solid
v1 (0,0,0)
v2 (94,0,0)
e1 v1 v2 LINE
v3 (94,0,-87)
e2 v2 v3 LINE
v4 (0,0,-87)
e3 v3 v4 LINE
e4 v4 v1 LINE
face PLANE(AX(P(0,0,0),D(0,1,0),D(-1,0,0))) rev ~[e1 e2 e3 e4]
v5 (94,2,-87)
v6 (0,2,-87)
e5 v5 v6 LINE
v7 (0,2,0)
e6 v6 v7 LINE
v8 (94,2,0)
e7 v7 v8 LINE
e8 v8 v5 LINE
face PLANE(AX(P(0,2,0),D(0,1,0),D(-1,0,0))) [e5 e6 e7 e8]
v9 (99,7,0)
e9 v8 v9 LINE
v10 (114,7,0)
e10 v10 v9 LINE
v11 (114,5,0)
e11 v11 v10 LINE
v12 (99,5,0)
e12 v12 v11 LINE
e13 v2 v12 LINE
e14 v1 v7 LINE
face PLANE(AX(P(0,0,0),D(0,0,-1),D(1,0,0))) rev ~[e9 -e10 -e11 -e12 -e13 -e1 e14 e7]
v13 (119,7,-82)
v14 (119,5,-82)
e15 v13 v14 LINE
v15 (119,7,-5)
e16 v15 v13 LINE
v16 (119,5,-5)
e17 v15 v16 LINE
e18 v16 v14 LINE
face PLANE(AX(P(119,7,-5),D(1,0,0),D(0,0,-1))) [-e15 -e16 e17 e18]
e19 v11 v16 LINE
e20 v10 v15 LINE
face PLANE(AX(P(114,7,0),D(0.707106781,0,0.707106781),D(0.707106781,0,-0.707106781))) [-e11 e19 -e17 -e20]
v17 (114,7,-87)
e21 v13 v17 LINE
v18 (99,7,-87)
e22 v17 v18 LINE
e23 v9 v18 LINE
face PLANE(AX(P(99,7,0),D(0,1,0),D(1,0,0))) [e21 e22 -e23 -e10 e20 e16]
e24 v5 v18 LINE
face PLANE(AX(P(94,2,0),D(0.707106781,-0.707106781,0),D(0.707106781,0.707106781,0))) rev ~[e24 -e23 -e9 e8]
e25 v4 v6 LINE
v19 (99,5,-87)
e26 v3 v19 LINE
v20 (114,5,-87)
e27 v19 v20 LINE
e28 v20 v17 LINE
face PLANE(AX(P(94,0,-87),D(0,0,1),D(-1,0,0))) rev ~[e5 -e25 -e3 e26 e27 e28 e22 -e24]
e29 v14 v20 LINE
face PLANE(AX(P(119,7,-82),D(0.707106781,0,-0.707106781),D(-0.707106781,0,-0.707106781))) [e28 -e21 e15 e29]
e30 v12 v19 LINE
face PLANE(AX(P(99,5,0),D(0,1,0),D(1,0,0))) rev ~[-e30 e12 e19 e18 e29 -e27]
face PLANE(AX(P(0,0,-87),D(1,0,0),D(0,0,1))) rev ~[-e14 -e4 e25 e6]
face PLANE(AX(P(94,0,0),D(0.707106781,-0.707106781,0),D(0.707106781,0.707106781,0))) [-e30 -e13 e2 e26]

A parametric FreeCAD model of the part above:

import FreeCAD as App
import Part
import Sketcher
from FreeCAD import Vector
Q = App.Units.Quantity

doc = App.newDocument("Part")
body = doc.addObject("PartDesign::Body", "Body")

sketch1 = doc.addObject("Sketcher::SketchObject", "Sketch")
body.addObject(sketch1)
sketch1.AttachmentSupport = (doc.XZ_Plane, [""])
sketch1.MapMode = "FlatFace"
sketch1.addGeometry([
    Part.LineSegment(Vector(0, -87, 0), Vector(0, 0, 0)),
    Part.LineSegment(Vector(0, 0, 0), Vector(94, 0, 0)),
    Part.LineSegment(Vector(94, 0, 0), Vector(94, -87, 0)),
    Part.LineSegment(Vector(94, -87, 0), Vector(0, -87, 0)),
], False)
sketch1.addConstraint([
    Sketcher.Constraint("Coincident", 0, 2, 1, 1),
    Sketcher.Constraint("Coincident", 1, 2, 2, 1),
    Sketcher.Constraint("Coincident", 2, 2, 3, 1),
    Sketcher.Constraint("Coincident", 3, 2, 0, 1),
    Sketcher.Constraint("Vertical", 0),
    Sketcher.Constraint("Horizontal", 1),
    Sketcher.Constraint("Vertical", 2),
    Sketcher.Constraint("Horizontal", 3),
    Sketcher.Constraint("Coincident", 0, 2, -1, 1),
    Sketcher.Constraint("DistanceX", 1, 1, 1, 2, Q("94 mm")),
    Sketcher.Constraint("DistanceY", 0, 1, 0, 2, Q("87 mm")),
])
pad1 = doc.addObject("PartDesign::Pad", "Pad")
body.addObject(pad1)
pad1.Profile = sketch1
pad1.Length = 2
pad1.Reversed = True

sketch2 = doc.addObject("Sketcher::SketchObject", "Sketch001")
body.addObject(sketch2)
sketch2.AttachmentSupport = (doc.XY_Plane, [""])
sketch2.MapMode = "FlatFace"
sketch2.addGeometry([
    Part.LineSegment(Vector(99, 7, 0), Vector(94, 2, 0)),
    Part.LineSegment(Vector(94, 2, 0), Vector(94, 0, 0)),
    Part.LineSegment(Vector(94, 0, 0), Vector(99, 5, 0)),
    Part.LineSegment(Vector(99, 5, 0), Vector(114, 5, 0)),
    Part.LineSegment(Vector(114, 5, 0), Vector(114, 7, 0)),
    Part.LineSegment(Vector(114, 7, 0), Vector(99, 7, 0)),
], False)
sketch2.addConstraint([
    Sketcher.Constraint("Coincident", 0, 2, 1, 1),
    Sketcher.Constraint("Coincident", 1, 2, 2, 1),
    Sketcher.Constraint("Coincident", 2, 2, 3, 1),
    Sketcher.Constraint("Coincident", 3, 2, 4, 1),
    Sketcher.Constraint("Coincident", 4, 2, 5, 1),
    Sketcher.Constraint("Coincident", 5, 2, 0, 1),
    Sketcher.Constraint("Vertical", 1),
    Sketcher.Constraint("Horizontal", 3),
    Sketcher.Constraint("Vertical", 4),
    Sketcher.Constraint("Horizontal", 5),
    Sketcher.Constraint("PointOnObject", 1, 2, -1),
    Sketcher.Constraint("Parallel", 0, 2),
    Sketcher.Constraint("Vertical", 2, 2, 5, 2),
    Sketcher.Constraint("DistanceX", 3, 1, 3, 2, Q("15 mm")),
    Sketcher.Constraint("DistanceY", 1, 2, 1, 1, Q("2 mm")),
    Sketcher.Constraint("Angle", 2, Q("45 deg")),
    Sketcher.Constraint("Distance", 0, Q("7.071 mm")),
    Sketcher.Constraint("DistanceX", -1, 1, 0, 2, Q("94 mm")),
])
pad2 = doc.addObject("PartDesign::Pad", "Pad001")
body.addObject(pad2)
pad2.Profile = sketch2
pad2.Length = 87
pad2.Reversed = True

sketch3 = doc.addObject("Sketcher::SketchObject", "Sketch002")
body.addObject(sketch3)
sketch3.AttachmentSupport = (doc.XZ_Plane, [""])
sketch3.MapMode = "FlatFace"
sketch3.AttachmentOffset = App.Placement(Vector(0, 0, -7), App.Rotation())
sketch3.addGeometry([
    Part.LineSegment(Vector(114, -87, 0), Vector(114, 0, 0)),
    Part.LineSegment(Vector(114, 0, 0), Vector(119, -5, 0)),
    Part.LineSegment(Vector(119, -5, 0), Vector(119, -82, 0)),
    Part.LineSegment(Vector(119, -82, 0), Vector(114, -87, 0)),
], False)
sketch3.addConstraint([
    Sketcher.Constraint("Coincident", 0, 2, 1, 1),
    Sketcher.Constraint("Coincident", 1, 2, 2, 1),
    Sketcher.Constraint("Coincident", 2, 2, 3, 1),
    Sketcher.Constraint("Coincident", 3, 2, 0, 1),
    Sketcher.Constraint("Vertical", 0),
    Sketcher.Constraint("Vertical", 2),
    Sketcher.Constraint("PointOnObject", 0, 2, -1),
    Sketcher.Constraint("Perpendicular", 1, 3),
    Sketcher.Constraint("Equal", 1, 3),
    Sketcher.Constraint("DistanceY", 2, 2, 2, 1, Q("77 mm")),
    Sketcher.Constraint("DistanceY", 0, 1, 0, 2, Q("87 mm")),
    Sketcher.Constraint("DistanceX", -1, 1, 0, 2, Q("114 mm")),
])
pad3 = doc.addObject("PartDesign::Pad", "Pad002")
body.addObject(pad3)
pad3.Profile = sketch3
pad3.Length = 2

doc.recompute()
